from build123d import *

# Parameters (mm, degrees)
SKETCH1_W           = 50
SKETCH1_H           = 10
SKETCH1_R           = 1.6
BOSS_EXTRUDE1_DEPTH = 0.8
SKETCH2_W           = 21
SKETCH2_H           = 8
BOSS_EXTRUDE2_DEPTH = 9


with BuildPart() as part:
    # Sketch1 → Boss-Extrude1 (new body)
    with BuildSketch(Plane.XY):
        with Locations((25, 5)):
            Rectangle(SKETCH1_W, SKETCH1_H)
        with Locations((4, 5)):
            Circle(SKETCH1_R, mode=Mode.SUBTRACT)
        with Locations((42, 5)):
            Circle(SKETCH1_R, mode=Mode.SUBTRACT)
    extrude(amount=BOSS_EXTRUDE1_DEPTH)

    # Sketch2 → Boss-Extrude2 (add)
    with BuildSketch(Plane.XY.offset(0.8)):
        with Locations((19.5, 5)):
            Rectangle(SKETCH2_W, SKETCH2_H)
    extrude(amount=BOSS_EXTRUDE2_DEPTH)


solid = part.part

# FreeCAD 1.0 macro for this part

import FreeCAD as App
import Part
import Sketcher
Q = App.Units.Quantity


def add_polygon(sketch, points):
    """Adds a closed chain of lines whose ends are joined by coincident constraints."""
    first, n = sketch.GeometryCount, len(points)
    for a, b in zip(points, points[1:] + points[:1]):
        sketch.addGeometry(Part.LineSegment(App.Vector(*a, 0), App.Vector(*b, 0)), False)
    for i in range(n):
        sketch.addConstraint(Sketcher.Constraint("Coincident", first + i, 2, first + (i + 1) % n, 1))

doc = App.newDocument("Part")
body = doc.addObject("PartDesign::Body", "Body")

# Sketch on XY plane
sketch1 = body.newObject("Sketcher::SketchObject", "Sketch")
sketch1.AttachmentSupport = (doc.getObject("XY_Plane"), [""])
sketch1.MapMode = "FlatFace"
add_polygon(sketch1, [(0, 10), (0, 0), (50, 0), (50, 10)])  # lines 0-3
sketch1.addGeometry(Part.Circle(App.Vector(4, 5, 0), App.Vector(0, 0, 1), 1.6), False)  # 4
sketch1.addGeometry(Part.Circle(App.Vector(42, 5, 0), App.Vector(0, 0, 1), 1.6), False)  # 5
sketch1.addConstraint([
    Sketcher.Constraint("Vertical", 0),
    Sketcher.Constraint("Horizontal", 1),
    Sketcher.Constraint("Vertical", 2),
    Sketcher.Constraint("Horizontal", 3),
    Sketcher.Constraint("Coincident", 0, 2, -1, 1),
    Sketcher.Constraint("Equal", 4, 5),
    Sketcher.Constraint("Horizontal", 4, 3, 5, 3),
    Sketcher.Constraint("Diameter", 4, Q("3.2 mm")),
    Sketcher.Constraint("DistanceX", 1, 1, 1, 2, Q("50 mm")),
    Sketcher.Constraint("DistanceY", 0, 2, 0, 1, Q("10 mm")),
    Sketcher.Constraint("DistanceX", -1, 1, 4, 3, Q("4 mm")),
    Sketcher.Constraint("DistanceY", -1, 1, 4, 3, Q("5 mm")),
    Sketcher.Constraint("DistanceX", -1, 1, 5, 3, Q("42 mm")),
])
pad1 = body.newObject("PartDesign::Pad", "Pad")
pad1.Profile = sketch1
pad1.Length = 0.8

# Sketch on XY plane
sketch2 = body.newObject("Sketcher::SketchObject", "Sketch001")
sketch2.AttachmentSupport = (doc.getObject("XY_Plane"), [""])
sketch2.MapMode = "FlatFace"
sketch2.AttachmentOffset = App.Placement(App.Vector(0, 0, 0.8), App.Rotation())
add_polygon(sketch2, [(9, 9), (9, 1), (30, 1), (30, 9)])  # lines 0-3
sketch2.addConstraint([
    Sketcher.Constraint("Vertical", 0),
    Sketcher.Constraint("Horizontal", 1),
    Sketcher.Constraint("Vertical", 2),
    Sketcher.Constraint("Horizontal", 3),
    Sketcher.Constraint("DistanceX", 1, 1, 1, 2, Q("21 mm")),
    Sketcher.Constraint("DistanceY", 0, 2, 0, 1, Q("8 mm")),
    Sketcher.Constraint("DistanceX", -1, 1, 0, 2, Q("9 mm")),
    Sketcher.Constraint("DistanceY", -1, 1, 0, 2, Q("1 mm")),
])
pad2 = body.newObject("PartDesign::Pad", "Pad001")
pad2.Profile = sketch2
pad2.Length = 9

doc.recompute()
